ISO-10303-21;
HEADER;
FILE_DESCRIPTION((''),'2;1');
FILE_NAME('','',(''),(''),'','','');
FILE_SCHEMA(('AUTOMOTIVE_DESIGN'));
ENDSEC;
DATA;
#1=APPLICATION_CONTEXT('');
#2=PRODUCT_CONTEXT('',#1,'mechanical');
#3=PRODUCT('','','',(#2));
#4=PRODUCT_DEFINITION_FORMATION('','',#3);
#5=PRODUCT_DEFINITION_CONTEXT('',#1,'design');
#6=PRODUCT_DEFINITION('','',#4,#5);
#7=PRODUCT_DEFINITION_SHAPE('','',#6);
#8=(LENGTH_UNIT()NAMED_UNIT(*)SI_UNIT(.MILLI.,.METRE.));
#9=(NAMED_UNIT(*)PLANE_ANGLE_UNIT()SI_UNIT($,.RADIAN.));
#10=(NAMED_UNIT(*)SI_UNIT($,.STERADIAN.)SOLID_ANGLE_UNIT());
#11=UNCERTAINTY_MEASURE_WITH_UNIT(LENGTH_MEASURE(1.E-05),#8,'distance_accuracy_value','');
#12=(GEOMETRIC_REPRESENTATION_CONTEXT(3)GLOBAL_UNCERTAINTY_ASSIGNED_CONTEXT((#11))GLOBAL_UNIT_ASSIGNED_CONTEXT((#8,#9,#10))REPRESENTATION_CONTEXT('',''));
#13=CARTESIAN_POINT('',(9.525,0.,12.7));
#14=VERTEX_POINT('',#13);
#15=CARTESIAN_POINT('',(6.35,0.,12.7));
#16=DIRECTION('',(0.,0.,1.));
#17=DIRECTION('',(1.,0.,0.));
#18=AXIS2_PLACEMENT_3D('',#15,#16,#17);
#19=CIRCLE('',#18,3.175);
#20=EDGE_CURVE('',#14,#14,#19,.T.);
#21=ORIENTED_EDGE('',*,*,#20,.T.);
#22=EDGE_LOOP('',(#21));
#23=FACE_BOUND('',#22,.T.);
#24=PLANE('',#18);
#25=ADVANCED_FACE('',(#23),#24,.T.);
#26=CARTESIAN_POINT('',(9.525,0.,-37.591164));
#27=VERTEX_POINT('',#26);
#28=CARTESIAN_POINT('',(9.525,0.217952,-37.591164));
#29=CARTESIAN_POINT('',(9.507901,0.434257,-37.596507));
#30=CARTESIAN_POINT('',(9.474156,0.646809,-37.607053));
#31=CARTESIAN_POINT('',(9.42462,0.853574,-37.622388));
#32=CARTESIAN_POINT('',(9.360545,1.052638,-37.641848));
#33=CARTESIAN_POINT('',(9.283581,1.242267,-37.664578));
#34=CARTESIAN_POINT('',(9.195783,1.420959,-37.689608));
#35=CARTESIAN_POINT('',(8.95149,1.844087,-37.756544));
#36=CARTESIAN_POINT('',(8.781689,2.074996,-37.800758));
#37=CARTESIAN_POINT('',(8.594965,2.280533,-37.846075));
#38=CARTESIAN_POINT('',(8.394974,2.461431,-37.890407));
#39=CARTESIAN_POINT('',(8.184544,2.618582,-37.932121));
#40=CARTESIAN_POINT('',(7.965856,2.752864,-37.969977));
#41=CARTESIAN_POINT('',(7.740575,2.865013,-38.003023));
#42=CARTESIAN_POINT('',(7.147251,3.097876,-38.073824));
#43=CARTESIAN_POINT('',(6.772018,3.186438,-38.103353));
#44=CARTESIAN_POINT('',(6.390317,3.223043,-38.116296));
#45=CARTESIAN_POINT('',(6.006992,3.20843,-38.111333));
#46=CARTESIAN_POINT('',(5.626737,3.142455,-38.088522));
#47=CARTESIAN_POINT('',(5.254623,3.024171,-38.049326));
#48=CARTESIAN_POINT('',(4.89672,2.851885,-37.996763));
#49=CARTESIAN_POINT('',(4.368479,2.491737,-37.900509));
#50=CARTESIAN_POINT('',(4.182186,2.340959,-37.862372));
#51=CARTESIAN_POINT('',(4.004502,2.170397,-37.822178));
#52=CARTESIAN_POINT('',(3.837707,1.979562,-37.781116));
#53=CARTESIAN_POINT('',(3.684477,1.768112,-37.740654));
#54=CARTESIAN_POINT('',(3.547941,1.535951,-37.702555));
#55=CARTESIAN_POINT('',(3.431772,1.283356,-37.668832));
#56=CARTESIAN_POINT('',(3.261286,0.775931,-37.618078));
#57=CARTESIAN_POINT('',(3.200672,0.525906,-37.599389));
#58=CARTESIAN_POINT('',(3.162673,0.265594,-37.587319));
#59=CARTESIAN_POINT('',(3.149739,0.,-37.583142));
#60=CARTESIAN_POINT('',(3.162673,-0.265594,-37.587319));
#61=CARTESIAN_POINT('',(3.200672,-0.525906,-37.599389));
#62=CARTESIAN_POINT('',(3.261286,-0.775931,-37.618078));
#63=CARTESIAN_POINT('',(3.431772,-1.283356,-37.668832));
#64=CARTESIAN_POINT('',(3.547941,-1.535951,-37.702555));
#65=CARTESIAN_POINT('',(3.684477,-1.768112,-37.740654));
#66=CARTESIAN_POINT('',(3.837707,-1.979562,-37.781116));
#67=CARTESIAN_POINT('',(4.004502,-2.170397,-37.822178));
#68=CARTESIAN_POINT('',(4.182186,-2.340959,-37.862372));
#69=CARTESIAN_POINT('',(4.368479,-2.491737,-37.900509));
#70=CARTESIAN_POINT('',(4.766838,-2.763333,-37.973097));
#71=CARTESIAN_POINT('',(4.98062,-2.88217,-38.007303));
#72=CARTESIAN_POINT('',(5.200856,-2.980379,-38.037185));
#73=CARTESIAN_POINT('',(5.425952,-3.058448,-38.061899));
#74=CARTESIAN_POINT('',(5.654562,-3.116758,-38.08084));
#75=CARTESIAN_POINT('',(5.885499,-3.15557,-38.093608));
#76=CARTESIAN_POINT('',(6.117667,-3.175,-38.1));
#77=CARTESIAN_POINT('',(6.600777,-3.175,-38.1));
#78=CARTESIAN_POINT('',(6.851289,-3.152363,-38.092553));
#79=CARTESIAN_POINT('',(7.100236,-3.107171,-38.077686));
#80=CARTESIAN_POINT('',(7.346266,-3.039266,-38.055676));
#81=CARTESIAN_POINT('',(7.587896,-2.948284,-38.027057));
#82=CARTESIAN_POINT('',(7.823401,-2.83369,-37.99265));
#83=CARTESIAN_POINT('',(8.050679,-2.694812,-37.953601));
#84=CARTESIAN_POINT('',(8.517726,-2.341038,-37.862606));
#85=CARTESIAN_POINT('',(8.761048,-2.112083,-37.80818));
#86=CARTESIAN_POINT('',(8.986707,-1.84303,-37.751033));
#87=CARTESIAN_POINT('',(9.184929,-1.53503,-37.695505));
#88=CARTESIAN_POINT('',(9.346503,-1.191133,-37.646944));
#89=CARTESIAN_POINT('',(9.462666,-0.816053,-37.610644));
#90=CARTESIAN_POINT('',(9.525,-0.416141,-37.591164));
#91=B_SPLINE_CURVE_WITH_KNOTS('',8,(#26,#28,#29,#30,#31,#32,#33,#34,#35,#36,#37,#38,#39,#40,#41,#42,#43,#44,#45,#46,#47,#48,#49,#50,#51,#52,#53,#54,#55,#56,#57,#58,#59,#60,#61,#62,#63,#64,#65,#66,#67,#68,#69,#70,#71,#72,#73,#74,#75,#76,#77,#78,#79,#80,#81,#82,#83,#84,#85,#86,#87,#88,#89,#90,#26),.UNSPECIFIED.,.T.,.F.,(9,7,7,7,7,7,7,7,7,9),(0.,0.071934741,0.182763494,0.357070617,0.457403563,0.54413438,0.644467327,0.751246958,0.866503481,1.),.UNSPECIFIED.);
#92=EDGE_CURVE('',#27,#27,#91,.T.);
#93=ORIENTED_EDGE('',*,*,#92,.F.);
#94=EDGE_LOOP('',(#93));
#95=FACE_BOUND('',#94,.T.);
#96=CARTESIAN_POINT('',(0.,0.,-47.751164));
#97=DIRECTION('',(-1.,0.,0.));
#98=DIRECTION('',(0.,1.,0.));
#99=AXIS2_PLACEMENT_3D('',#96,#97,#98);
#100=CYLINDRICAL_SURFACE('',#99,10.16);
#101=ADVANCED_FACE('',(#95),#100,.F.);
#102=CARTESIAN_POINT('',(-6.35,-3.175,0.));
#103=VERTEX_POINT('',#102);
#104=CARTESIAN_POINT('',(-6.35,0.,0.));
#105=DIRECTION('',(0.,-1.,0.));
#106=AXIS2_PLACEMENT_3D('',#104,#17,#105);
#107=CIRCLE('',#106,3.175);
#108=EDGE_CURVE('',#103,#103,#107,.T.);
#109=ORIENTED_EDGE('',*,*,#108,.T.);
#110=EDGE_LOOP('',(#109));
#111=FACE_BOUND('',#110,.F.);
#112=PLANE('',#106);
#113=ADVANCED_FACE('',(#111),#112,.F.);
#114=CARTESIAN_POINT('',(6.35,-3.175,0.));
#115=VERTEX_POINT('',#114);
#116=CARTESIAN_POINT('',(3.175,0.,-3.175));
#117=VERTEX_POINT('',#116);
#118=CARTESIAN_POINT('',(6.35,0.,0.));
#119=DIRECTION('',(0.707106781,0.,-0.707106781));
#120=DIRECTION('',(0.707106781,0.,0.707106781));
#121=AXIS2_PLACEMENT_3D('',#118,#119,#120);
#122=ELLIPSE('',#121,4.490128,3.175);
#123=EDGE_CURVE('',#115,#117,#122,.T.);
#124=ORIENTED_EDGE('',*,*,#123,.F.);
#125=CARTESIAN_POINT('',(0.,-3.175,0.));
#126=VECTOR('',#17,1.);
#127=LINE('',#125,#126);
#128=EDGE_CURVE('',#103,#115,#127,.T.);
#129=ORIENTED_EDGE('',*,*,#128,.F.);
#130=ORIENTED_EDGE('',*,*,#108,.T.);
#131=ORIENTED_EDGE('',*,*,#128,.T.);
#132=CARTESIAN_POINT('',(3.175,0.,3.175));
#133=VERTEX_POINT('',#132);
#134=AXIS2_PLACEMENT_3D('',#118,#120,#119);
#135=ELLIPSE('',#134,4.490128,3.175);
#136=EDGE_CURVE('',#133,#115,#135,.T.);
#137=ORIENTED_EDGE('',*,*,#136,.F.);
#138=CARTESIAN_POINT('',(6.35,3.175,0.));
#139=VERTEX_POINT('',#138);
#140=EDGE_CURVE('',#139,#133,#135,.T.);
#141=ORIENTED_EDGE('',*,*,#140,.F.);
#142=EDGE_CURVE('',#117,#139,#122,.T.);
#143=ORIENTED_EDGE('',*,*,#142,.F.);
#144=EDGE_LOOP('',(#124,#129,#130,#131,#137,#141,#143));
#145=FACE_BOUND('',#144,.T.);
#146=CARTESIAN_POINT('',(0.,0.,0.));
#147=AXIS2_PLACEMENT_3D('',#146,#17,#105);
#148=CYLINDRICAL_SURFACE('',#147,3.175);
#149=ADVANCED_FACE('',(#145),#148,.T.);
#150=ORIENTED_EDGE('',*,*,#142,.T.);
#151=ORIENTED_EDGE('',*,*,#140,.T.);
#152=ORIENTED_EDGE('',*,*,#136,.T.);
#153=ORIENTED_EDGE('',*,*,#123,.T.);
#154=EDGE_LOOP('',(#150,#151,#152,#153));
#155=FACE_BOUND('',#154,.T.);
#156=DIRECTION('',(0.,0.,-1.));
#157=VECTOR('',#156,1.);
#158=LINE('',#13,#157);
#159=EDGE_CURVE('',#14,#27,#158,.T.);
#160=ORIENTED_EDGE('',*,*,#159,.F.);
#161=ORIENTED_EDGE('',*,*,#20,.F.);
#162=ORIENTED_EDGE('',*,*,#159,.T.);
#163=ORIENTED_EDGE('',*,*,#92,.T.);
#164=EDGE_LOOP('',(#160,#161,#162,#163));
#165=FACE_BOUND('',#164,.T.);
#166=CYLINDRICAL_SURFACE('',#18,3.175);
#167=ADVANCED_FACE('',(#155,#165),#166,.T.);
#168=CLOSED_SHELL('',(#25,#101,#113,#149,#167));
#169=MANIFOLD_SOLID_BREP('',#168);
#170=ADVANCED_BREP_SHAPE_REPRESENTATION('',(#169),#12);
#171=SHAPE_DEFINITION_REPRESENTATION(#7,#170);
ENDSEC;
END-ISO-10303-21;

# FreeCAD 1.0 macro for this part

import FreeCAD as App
import Part
import Sketcher
from FreeCAD import Vector
Q = App.Units.Quantity

doc = App.newDocument("Part")
body = doc.addObject("PartDesign::Body", "Body")

# Sketch on XY plane
sketch1 = body.newObject("Sketcher::SketchObject", "Sketch")
sketch1.AttachmentSupport = (doc.getObject("XY_Plane"), [""])
sketch1.MapMode = "FlatFace"
sketch1.addGeometry(Part.LineSegment(Vector(-6.3, 0, 0), Vector(-6.3, -3.2, 0)), False)
sketch1.addGeometry(Part.LineSegment(Vector(-6.3, -3.2, 0), Vector(6.3, -3.2, 0)), False)
sketch1.addGeometry(Part.LineSegment(Vector(6.3, -3.2, 0), Vector(6.3, 0, 0)), False)
sketch1.addGeometry(Part.LineSegment(Vector(6.3, 0, 0), Vector(-6.3, 0, 0)), False)
sketch1.addConstraint(Sketcher.Constraint("Coincident", 0, 2, 1, 1))
sketch1.addConstraint(Sketcher.Constraint("Coincident", 1, 2, 2, 1))
sketch1.addConstraint(Sketcher.Constraint("Coincident", 2, 2, 3, 1))
sketch1.addConstraint(Sketcher.Constraint("Coincident", 3, 2, 0, 1))
sketch1.addConstraint(Sketcher.Constraint("Vertical", 0))
sketch1.addConstraint(Sketcher.Constraint("Horizontal", 1))
sketch1.addConstraint(Sketcher.Constraint("Vertical", 2))
sketch1.addConstraint(Sketcher.Constraint("Horizontal", 3))
sketch1.addConstraint(Sketcher.Constraint("Symmetric", 2, 2, 3, 2, -1, 1))
sketch1.addConstraint(Sketcher.Constraint("DistanceX", 1, 1, 1, 2, Q("0.5 in")))
sketch1.addConstraint(Sketcher.Constraint("DistanceY", 0, 2, 0, 1, Q("0.125 in")))
revolution = body.newObject("PartDesign::Revolution", "Revolution")
revolution.Profile = sketch1
revolution.ReferenceAxis = (sketch1, ["H_Axis"])
revolution.Angle = 360

# Sketch on XY plane
sketch2 = body.newObject("Sketcher::SketchObject", "Sketch001")
sketch2.AttachmentSupport = (doc.getObject("XY_Plane"), [""])
sketch2.MapMode = "FlatFace"
sketch2.addGeometry(Part.Circle(Vector(6.3, 0, 0), Vector(0, 0, 1), 3.2), False)
sketch2.addConstraint(Sketcher.Constraint("PointOnObject", 0, 3, -1))
sketch2.addConstraint(Sketcher.Constraint("Diameter", 0, Q("0.25 in")))
sketch2.addConstraint(Sketcher.Constraint("DistanceX", -1, 1, 0, 3, Q("0.25 in")))
pocket1 = body.newObject("PartDesign::Pocket", "Pocket")
pocket1.Profile = sketch2
pocket1.Length = Q("0.25 in")
pocket1.Midplane = True

# Sketch on XY plane
sketch3 = body.newObject("Sketcher::SketchObject", "Sketch002")
sketch3.AttachmentSupport = (doc.getObject("XY_Plane"), [""])
sketch3.MapMode = "FlatFace"
sketch3.AttachmentOffset = App.Placement(Vector(0, 0, 0.5 * 25.4), App.Rotation())
sketch3.addGeometry(Part.Circle(Vector(6.3, 0, 0), Vector(0, 0, 1), 3.2), False)
sketch3.addConstraint(Sketcher.Constraint("PointOnObject", 0, 3, -1))
sketch3.addConstraint(Sketcher.Constraint("Diameter", 0, Q("0.25 in")))
sketch3.addConstraint(Sketcher.Constraint("DistanceX", -1, 1, 0, 3, Q("0.25 in")))
pad1 = body.newObject("PartDesign::Pad", "Pad")
pad1.Profile = sketch3
pad1.Length = Q("2 in")
pad1.Reversed = True

# Sketch on YZ plane
sketch4 = body.newObject("Sketcher::SketchObject", "Sketch003")
sketch4.AttachmentSupport = (doc.getObject("YZ_Plane"), [""])
sketch4.MapMode = "FlatFace"
sketch4.addGeometry(Part.Circle(Vector(0, -48, 0), Vector(0, 0, 1), 10), False)
sketch4.addConstraint(Sketcher.Constraint("PointOnObject", 0, 3, -2))
sketch4.addConstraint(Sketcher.Constraint("Diameter", 0, Q("0.8 in")))
sketch4.addConstraint(Sketcher.Constraint("DistanceY", 0, 3, -1, 1, 47.751164))
pocket2 = body.newObject("PartDesign::Pocket", "Pocket001")
pocket2.Profile = sketch4
pocket2.Length = Q("1 in")
pocket2.Reversed = True

doc.recompute()
